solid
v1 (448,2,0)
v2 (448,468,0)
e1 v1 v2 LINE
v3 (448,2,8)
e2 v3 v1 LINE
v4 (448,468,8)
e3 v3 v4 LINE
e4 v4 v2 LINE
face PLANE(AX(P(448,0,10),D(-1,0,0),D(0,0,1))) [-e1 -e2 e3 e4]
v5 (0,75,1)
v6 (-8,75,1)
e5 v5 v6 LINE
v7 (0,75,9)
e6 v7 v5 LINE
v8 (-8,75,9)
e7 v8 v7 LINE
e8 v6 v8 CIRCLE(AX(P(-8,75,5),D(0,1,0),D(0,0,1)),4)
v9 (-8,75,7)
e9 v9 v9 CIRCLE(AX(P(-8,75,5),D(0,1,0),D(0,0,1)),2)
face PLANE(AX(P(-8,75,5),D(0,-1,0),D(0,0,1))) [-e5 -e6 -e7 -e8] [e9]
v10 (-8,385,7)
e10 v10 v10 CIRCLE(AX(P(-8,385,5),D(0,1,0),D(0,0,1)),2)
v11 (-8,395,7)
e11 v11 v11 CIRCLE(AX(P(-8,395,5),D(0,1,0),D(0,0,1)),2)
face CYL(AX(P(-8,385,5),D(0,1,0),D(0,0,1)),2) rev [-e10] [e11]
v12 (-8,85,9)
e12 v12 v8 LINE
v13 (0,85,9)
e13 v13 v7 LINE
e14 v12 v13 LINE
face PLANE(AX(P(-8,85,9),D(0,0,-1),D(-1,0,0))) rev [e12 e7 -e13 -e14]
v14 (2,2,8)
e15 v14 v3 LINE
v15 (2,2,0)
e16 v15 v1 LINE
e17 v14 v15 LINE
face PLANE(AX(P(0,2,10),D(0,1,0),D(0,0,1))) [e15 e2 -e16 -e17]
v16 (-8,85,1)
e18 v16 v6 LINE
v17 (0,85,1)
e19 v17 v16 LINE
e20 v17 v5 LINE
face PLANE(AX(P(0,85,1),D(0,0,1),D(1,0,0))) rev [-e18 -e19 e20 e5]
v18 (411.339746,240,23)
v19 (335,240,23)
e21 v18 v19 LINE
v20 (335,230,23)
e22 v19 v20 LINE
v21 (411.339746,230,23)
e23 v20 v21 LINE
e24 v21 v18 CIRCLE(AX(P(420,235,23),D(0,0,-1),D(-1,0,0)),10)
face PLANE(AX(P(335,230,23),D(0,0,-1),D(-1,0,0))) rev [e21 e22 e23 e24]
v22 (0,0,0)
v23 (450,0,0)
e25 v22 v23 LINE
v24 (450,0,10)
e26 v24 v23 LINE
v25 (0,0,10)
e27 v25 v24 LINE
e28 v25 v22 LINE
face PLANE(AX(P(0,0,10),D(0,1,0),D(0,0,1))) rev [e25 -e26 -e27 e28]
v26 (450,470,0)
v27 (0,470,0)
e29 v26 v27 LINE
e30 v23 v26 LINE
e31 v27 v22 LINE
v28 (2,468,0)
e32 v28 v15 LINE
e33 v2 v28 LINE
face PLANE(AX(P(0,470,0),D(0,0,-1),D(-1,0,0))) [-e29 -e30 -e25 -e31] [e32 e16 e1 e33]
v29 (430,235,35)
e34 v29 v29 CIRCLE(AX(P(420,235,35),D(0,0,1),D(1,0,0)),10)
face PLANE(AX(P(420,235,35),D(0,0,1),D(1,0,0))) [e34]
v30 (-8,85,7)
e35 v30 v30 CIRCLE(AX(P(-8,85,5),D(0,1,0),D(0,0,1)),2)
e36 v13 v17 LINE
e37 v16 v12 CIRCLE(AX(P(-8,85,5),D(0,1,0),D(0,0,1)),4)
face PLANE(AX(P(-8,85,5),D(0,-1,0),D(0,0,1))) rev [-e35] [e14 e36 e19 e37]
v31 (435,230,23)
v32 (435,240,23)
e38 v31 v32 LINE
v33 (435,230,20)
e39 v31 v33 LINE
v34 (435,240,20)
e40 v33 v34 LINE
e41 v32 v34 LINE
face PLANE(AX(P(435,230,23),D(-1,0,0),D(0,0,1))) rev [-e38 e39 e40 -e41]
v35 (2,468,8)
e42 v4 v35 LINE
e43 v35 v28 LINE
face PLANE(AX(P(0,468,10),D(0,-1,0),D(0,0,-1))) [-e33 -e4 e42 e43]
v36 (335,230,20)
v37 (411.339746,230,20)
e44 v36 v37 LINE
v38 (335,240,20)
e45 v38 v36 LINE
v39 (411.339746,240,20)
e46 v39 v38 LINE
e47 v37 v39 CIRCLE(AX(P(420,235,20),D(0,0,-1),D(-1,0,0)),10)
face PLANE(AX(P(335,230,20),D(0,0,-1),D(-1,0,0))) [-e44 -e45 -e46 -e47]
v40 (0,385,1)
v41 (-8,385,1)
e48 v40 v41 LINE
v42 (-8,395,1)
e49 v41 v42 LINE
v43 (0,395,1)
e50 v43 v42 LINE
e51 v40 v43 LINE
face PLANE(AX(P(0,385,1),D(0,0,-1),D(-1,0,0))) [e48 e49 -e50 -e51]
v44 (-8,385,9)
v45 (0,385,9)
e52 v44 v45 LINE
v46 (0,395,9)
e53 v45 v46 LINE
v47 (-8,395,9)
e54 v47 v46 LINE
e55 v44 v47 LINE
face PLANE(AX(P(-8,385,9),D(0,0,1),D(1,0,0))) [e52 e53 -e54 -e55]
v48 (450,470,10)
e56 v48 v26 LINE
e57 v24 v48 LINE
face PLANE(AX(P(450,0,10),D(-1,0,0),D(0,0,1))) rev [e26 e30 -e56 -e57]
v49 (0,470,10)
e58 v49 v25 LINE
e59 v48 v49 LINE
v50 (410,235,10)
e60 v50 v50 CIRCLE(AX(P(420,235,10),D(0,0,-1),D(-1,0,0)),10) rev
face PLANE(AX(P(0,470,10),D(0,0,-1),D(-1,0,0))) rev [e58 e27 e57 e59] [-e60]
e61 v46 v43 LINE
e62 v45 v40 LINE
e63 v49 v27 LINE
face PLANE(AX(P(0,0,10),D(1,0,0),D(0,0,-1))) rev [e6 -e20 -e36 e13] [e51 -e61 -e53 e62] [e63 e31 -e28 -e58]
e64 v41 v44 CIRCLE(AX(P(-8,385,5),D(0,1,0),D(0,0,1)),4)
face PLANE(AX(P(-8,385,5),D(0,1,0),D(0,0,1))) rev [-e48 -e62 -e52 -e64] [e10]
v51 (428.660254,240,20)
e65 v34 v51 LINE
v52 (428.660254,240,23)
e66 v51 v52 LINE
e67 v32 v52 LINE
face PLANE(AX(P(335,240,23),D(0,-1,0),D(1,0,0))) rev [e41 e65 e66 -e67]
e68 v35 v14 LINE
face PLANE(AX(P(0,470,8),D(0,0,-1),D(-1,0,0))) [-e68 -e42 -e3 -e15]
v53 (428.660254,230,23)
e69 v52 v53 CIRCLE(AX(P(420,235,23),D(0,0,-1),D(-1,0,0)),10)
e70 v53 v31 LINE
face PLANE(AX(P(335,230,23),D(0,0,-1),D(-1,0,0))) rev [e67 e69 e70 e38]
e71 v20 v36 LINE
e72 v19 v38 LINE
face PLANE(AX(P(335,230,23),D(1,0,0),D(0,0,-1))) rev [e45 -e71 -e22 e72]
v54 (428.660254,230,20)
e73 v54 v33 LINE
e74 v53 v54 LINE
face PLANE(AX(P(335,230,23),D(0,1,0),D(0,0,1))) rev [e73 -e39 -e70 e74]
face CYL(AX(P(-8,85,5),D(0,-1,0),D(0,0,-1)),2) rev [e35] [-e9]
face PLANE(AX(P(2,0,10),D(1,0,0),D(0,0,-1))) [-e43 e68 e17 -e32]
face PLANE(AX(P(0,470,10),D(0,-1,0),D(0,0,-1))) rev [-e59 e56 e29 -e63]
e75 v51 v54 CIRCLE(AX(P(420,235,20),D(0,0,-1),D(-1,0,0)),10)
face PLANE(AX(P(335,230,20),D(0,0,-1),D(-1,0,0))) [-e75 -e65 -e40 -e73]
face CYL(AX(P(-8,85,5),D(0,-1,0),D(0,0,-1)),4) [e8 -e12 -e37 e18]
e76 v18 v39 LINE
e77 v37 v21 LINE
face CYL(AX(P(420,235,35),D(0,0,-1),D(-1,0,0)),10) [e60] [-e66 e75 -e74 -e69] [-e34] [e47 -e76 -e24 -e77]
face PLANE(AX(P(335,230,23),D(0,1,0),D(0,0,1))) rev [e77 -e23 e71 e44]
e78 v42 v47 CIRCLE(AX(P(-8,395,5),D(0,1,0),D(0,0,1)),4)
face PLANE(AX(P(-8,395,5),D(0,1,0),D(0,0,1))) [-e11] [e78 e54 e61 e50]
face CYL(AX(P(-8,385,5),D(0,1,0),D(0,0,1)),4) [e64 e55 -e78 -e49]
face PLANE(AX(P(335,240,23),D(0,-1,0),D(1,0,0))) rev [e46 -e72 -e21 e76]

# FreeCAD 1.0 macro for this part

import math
import FreeCAD as App
import Part
import Sketcher
Q = App.Units.Quantity


def faces_at(feature, points):
    """Names of the faces that lie closest to the given points."""
    faces = feature.Shape.Faces
    near = lambda p: min(range(len(faces)), key=lambda i: faces[i].distToShape(Part.Vertex(*p))[0])
    return sorted({f"Face{near(p) + 1}" for p in points})


def add_polygon(sketch, points):
    """Adds a closed chain of lines whose ends are joined by coincident constraints."""
    first, n = sketch.GeometryCount, len(points)
    for a, b in zip(points, points[1:] + points[:1]):
        sketch.addGeometry(Part.LineSegment(App.Vector(*a, 0), App.Vector(*b, 0)), False)
    for i in range(n):
        sketch.addConstraint(Sketcher.Constraint("Coincident", first + i, 2, first + (i + 1) % n, 1))

doc = App.newDocument("Part")
body = doc.addObject("PartDesign::Body", "Body")

# Sketch on XY plane
sketch1 = doc.addObject("Sketcher::SketchObject", "Sketch")
body.addObject(sketch1)
sketch1.AttachmentSupport = (doc.XY_Plane, [""])
sketch1.MapMode = "FlatFace"
add_polygon(sketch1, [(0, 470), (0, 0), (450, 0), (450, 470)])  # lines 0-3
sketch1.addConstraint(Sketcher.Constraint("Vertical", 0))
sketch1.addConstraint(Sketcher.Constraint("Horizontal", 1))
sketch1.addConstraint(Sketcher.Constraint("Vertical", 2))
sketch1.addConstraint(Sketcher.Constraint("Horizontal", 3))
sketch1.addConstraint(Sketcher.Constraint("Coincident", 0, 2, -1, 1))
sketch1.addConstraint(Sketcher.Constraint("DistanceX", 1, 1, 1, 2, Q("450 mm")))
sketch1.addConstraint(Sketcher.Constraint("DistanceY", 0, 2, 0, 1, Q("470 mm")))
pad1 = doc.addObject("PartDesign::Pad", "Pad")
body.addObject(pad1)
pad1.Profile = sketch1
pad1.Length = 10
doc.recompute()

thickness = doc.addObject("PartDesign::Thickness", "Thickness")
body.addObject(thickness)
thickness.Base = (pad1, faces_at(pad1, [(225, 235, 0)]))
thickness.Value = 2
thickness.Reversed = True
thickness.Join = "Intersection"

# Sketch on XZ plane
sketch2 = doc.addObject("Sketcher::SketchObject", "Sketch001")
body.addObject(sketch2)
sketch2.AttachmentSupport = (doc.XZ_Plane, [""])
sketch2.MapMode = "FlatFace"
sketch2.AttachmentOffset = App.Placement(App.Vector(0, 0, -395), App.Rotation())
sketch2.addGeometry(Part.LineSegment(App.Vector(-8, 9, 0), App.Vector(0, 9, 0)), False)
sketch2.addGeometry(Part.LineSegment(App.Vector(0, 9, 0), App.Vector(0, 1, 0)), False)
sketch2.addGeometry(Part.LineSegment(App.Vector(0, 1, 0), App.Vector(-8, 1, 0)), False)
sketch2.addGeometry(Part.ArcOfCircle(Part.Circle(App.Vector(-8, 5, 0), App.Vector(0, 0, 1), 4), math.radians(90), math.radians(270)), False)
sketch2.addGeometry(Part.Circle(App.Vector(-8, 5, 0), App.Vector(0, 0, 1), 2), False)
sketch2.addConstraint(Sketcher.Constraint("Coincident", 0, 2, 1, 1))
sketch2.addConstraint(Sketcher.Constraint("Coincident", 1, 2, 2, 1))
sketch2.addConstraint(Sketcher.Constraint("Tangent", 2, 2, 3, 2))
sketch2.addConstraint(Sketcher.Constraint("Tangent", 3, 1, 0, 1))
sketch2.addConstraint(Sketcher.Constraint("Horizontal", 0))
sketch2.addConstraint(Sketcher.Constraint("Vertical", 1))
sketch2.addConstraint(Sketcher.Constraint("Horizontal", 2))
sketch2.addConstraint(Sketcher.Constraint("Coincident", 4, 3, 3, 3))
sketch2.addConstraint(Sketcher.Constraint("PointOnObject", 0, 2, -2))
sketch2.addConstraint(Sketcher.Constraint("Equal", 2, 1))
sketch2.addConstraint(Sketcher.Constraint("Diameter", 4, Q("4 mm")))
sketch2.addConstraint(Sketcher.Constraint("Radius", 3, Q("4 mm")))
sketch2.addConstraint(Sketcher.Constraint("DistanceY", -1, 1, 3, 3, Q("5 mm")))
pad2 = doc.addObject("PartDesign::Pad", "Pad001")
body.addObject(pad2)
pad2.Profile = sketch2
pad2.Length = 10
doc.recompute()

datumplane = doc.addObject("PartDesign::Plane", "DatumPlane")
body.addObject(datumplane)
datumplane.AttachmentSupport = (doc.XZ_Plane, [""])
datumplane.MapMode = "FlatFace"
datumplane.AttachmentOffset = App.Placement(App.Vector(0, 0, -235), App.Rotation())
mirrored = doc.addObject("PartDesign::Mirrored", "Mirrored")
body.addObject(mirrored)
mirrored.Originals = [pad2]
mirrored.MirrorPlane = (datumplane, [""])
body.Tip = mirrored

# Sketch on XY plane
sketch3 = doc.addObject("Sketcher::SketchObject", "Sketch002")
body.addObject(sketch3)
sketch3.AttachmentSupport = (doc.XY_Plane, [""])
sketch3.MapMode = "FlatFace"
sketch3.AttachmentOffset = App.Placement(App.Vector(0, 0, 10), App.Rotation())
sketch3.addGeometry(Part.Circle(App.Vector(420, 235, 0), App.Vector(0, 0, 1), 10), False)
sketch3.addConstraint(Sketcher.Constraint("Diameter", 0, Q("20 mm")))
sketch3.addConstraint(Sketcher.Constraint("DistanceX", -1, 1, 0, 3, Q("420 mm")))
sketch3.addConstraint(Sketcher.Constraint("DistanceY", -1, 1, 0, 3, Q("235 mm")))
pad3 = doc.addObject("PartDesign::Pad", "Pad002")
body.addObject(pad3)
pad3.Profile = sketch3
pad3.Length = 25

# Sketch on XY plane
sketch4 = doc.addObject("Sketcher::SketchObject", "Sketch003")
body.addObject(sketch4)
sketch4.AttachmentSupport = (doc.XY_Plane, [""])
sketch4.MapMode = "FlatFace"
sketch4.AttachmentOffset = App.Placement(App.Vector(0, 0, 20), App.Rotation())
add_polygon(sketch4, [(335, 240), (335, 230), (435, 230), (435, 240)])  # lines 0-3
sketch4.addConstraint(Sketcher.Constraint("Vertical", 0))
sketch4.addConstraint(Sketcher.Constraint("Horizontal", 1))
sketch4.addConstraint(Sketcher.Constraint("Vertical", 2))
sketch4.addConstraint(Sketcher.Constraint("Horizontal", 3))
sketch4.addConstraint(Sketcher.Constraint("DistanceX", 1, 1, 1, 2, Q("100 mm")))
sketch4.addConstraint(Sketcher.Constraint("DistanceY", 0, 2, 0, 1, Q("10 mm")))
sketch4.addConstraint(Sketcher.Constraint("DistanceX", -1, 1, 0, 2, Q("335 mm")))
sketch4.addConstraint(Sketcher.Constraint("DistanceY", -1, 1, 0, 2, Q("230 mm")))
pad4 = doc.addObject("PartDesign::Pad", "Pad003")
body.addObject(pad4)
pad4.Profile = sketch4
pad4.Length = 3

doc.recompute()
